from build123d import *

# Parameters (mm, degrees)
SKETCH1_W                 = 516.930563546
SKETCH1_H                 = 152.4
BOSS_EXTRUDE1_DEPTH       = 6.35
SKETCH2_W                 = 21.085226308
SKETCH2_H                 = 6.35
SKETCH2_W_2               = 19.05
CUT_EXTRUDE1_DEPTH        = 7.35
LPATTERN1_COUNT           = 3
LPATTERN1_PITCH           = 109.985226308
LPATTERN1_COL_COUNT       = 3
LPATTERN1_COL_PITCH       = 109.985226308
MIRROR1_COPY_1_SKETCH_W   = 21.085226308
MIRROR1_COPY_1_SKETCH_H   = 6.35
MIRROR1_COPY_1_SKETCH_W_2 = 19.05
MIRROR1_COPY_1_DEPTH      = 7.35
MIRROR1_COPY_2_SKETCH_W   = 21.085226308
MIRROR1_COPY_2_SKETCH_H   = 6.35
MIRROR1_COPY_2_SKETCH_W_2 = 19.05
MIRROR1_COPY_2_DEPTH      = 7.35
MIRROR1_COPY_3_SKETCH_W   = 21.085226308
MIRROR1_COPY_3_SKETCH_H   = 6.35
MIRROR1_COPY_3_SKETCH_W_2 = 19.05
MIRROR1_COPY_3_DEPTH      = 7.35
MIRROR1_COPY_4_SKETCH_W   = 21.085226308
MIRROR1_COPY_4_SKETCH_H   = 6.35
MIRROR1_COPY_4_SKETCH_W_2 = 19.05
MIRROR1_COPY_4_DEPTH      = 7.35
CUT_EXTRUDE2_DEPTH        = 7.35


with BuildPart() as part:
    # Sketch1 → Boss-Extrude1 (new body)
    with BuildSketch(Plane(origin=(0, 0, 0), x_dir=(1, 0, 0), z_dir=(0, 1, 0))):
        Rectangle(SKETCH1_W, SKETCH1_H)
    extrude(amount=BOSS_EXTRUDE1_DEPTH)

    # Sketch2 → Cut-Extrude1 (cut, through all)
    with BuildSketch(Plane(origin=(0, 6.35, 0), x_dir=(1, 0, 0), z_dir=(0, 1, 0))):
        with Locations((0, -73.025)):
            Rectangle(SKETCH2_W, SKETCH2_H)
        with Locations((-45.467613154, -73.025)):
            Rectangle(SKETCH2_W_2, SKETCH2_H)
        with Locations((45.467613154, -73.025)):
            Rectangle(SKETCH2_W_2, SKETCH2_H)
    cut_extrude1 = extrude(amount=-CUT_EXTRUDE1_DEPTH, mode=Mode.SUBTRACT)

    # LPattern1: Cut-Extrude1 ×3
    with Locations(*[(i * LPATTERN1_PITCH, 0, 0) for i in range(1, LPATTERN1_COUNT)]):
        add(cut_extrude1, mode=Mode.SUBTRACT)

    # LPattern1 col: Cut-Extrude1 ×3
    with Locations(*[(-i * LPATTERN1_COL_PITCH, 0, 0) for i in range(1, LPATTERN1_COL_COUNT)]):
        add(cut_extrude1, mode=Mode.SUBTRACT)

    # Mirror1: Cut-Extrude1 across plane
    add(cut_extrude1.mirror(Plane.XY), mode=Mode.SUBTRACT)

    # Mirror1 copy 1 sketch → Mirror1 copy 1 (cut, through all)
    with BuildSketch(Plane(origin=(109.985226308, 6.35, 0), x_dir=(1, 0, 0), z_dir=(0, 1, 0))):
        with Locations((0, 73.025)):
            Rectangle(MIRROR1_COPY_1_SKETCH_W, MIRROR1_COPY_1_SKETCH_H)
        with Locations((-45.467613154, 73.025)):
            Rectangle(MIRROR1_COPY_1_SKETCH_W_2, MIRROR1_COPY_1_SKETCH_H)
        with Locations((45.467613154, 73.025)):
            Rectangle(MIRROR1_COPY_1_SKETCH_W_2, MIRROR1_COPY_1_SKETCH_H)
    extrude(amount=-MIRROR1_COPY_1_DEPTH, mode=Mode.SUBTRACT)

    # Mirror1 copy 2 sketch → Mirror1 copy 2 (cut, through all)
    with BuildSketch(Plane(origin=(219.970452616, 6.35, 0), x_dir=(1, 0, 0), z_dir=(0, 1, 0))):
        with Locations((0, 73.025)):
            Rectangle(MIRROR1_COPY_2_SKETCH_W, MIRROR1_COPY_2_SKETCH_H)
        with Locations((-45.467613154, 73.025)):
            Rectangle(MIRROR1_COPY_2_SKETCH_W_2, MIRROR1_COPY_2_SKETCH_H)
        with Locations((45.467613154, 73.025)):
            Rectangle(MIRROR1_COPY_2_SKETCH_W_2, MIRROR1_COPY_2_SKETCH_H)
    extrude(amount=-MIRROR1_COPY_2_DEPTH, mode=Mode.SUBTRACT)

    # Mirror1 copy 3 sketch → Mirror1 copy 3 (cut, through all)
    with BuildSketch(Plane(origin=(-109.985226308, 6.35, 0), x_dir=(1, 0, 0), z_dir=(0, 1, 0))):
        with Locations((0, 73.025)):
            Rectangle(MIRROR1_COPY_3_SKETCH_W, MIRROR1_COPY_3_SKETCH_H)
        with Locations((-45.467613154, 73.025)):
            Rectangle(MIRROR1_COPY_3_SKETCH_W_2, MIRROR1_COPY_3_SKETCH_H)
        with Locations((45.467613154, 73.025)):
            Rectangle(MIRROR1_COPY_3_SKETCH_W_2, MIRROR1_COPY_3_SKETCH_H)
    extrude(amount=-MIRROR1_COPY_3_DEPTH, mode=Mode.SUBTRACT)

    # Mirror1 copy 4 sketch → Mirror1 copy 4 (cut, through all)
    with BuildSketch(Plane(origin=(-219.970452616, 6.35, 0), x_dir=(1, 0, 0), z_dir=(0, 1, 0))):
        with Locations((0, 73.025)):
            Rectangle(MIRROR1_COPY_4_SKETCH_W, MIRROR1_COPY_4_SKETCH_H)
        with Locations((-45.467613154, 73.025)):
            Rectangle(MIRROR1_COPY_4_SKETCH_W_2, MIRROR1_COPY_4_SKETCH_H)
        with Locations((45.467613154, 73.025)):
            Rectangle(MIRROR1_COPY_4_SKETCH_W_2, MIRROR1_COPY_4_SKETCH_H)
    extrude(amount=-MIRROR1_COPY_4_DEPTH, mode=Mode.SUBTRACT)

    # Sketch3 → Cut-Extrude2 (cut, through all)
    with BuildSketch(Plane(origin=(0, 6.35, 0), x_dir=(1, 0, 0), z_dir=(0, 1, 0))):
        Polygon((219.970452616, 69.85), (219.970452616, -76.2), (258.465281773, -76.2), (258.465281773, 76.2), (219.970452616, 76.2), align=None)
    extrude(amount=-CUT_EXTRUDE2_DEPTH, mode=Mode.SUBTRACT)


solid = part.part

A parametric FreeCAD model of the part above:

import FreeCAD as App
import Part
import Sketcher
from FreeCAD import Vector
Q = App.Units.Quantity


def add_polygon(sketch, points):
    """Adds a closed chain of lines whose ends are joined by coincident constraints."""
    first, n = sketch.GeometryCount, len(points)
    for a, b in zip(points, points[1:] + points[:1]):
        sketch.addGeometry(Part.LineSegment(App.Vector(*a, 0), App.Vector(*b, 0)), False)
    for i in range(n):
        sketch.addConstraint(Sketcher.Constraint("Coincident", first + i, 2, first + (i + 1) % n, 1))

doc = App.newDocument("Part")
body = doc.addObject("PartDesign::Body", "Body")

# Sketch on XZ plane
sketch1 = body.newObject("Sketcher::SketchObject", "Sketch")
sketch1.AttachmentSupport = (doc.getObject("XZ_Plane"), [""])
sketch1.MapMode = "FlatFace"
add_polygon(sketch1, [(-258, -76), (-258, 76), (258, 76), (258, -76)])  # lines 0-3
sketch1.addConstraint([
    Sketcher.Constraint("Vertical", 0),
    Sketcher.Constraint("Horizontal", 1),
    Sketcher.Constraint("Vertical", 2),
    Sketcher.Constraint("Horizontal", 3),
    Sketcher.Constraint("Symmetric", 0, 2, 2, 2, -1, 1),
    Sketcher.Constraint("DistanceY", 0, 1, 0, 2, Q("6 in")),
    Sketcher.Constraint("DistanceX", 1, 1, 1, 2, 516.930564),
])
pad1 = body.newObject("PartDesign::Pad", "Pad")
pad1.Profile = sketch1
pad1.Length = Q("0.25 in")
pad1.Reversed = True

# Sketch on XZ plane
sketch2 = body.newObject("Sketcher::SketchObject", "Sketch001")
sketch2.AttachmentSupport = (doc.getObject("XZ_Plane"), [""])
sketch2.MapMode = "FlatFace"
sketch2.AttachmentOffset = App.Placement(Vector(0, 0, -0.25 * 25.4), App.Rotation())
add_polygon(sketch2, [(-11, 70), (-11, 76), (11, 76), (11, 70)])  # lines 0-3
add_polygon(sketch2, [(-55, 70), (-55, 76), (-36, 76), (-36, 70)])  # lines 4-7
add_polygon(sketch2, [(36, 70), (36, 76), (55, 76), (55, 70)])  # lines 8-11
sketch2.addConstraint([
    Sketcher.Constraint("Vertical", 0),
    Sketcher.Constraint("Horizontal", 1),
    Sketcher.Constraint("Vertical", 2),
    Sketcher.Constraint("Horizontal", 3),
    Sketcher.Constraint("Vertical", 4),
    Sketcher.Constraint("Horizontal", 5),
    Sketcher.Constraint("Vertical", 6),
    Sketcher.Constraint("Horizontal", 7),
    Sketcher.Constraint("Vertical", 8),
    Sketcher.Constraint("Horizontal", 9),
    Sketcher.Constraint("Vertical", 10),
    Sketcher.Constraint("Horizontal", 11),
    Sketcher.Constraint("Symmetric", 5, 2, 8, 2, -2),
    Sketcher.Constraint("Symmetric", 7, 2, 10, 2, -2),
    Sketcher.Constraint("Horizontal", 1, 2, 4, 2),
    Sketcher.Constraint("Horizontal", 3, 2, 6, 2),
    Sketcher.Constraint("DistanceY", -1, 1, 0, 2, Q("3 in")),
    Sketcher.Constraint("DistanceX", 5, 2, 0, 2, Q("1 in")),
    Sketcher.Constraint("DistanceX", 1, 2, 8, 2, Q("1 in")),
    Sketcher.Constraint("DistanceX", 5, 1, 5, 2, Q("0.75 in")),
    Sketcher.Constraint("DistanceY", 0, 1, 0, 2, Q("0.25 in")),
    Sketcher.Constraint("DistanceX", 1, 1, 1, 2, 21.085226),
])
pocket1 = body.newObject("PartDesign::Pocket", "Pocket")
pocket1.Profile = sketch2
pocket1.Type = "ThroughAll"
pocket1.Reversed = True
doc.recompute()

linearpattern = body.newObject("PartDesign::LinearPattern", "LinearPattern")
linearpattern.Originals = [pocket1]
linearpattern.Direction = (doc.getObject("X_Axis"), [""])
linearpattern.Mode = "offset"
linearpattern.Offset = 109.985226
linearpattern.Occurrences = 3
body.Tip = linearpattern
doc.recompute()

linearpattern2 = body.newObject("PartDesign::LinearPattern", "LinearPattern001")
linearpattern2.Originals = [pocket1]
linearpattern2.Direction = (doc.getObject("X_Axis"), [""])
linearpattern2.Mode = "offset"
linearpattern2.Offset = 109.985226
linearpattern2.Occurrences = 3
linearpattern2.Reversed = True
body.Tip = linearpattern2
doc.recompute()

mirrored = body.newObject("PartDesign::Mirrored", "Mirrored")
mirrored.Originals = [pocket1]
mirrored.MirrorPlane = (doc.getObject("XY_Plane"), [""])
body.Tip = mirrored

# Sketch on XZ plane
sketch3 = body.newObject("Sketcher::SketchObject", "Sketch002")
sketch3.AttachmentSupport = (doc.getObject("XZ_Plane"), [""])
sketch3.MapMode = "FlatFace"
sketch3.AttachmentOffset = App.Placement(Vector(0, 0, -0.25 * 25.4), App.Rotation())
add_polygon(sketch3, [(99, -76), (99, -70), (121, -70), (121, -76)])  # lines 0-3
add_polygon(sketch3, [(55, -76), (55, -70), (74, -70), (74, -76)])  # lines 4-7
add_polygon(sketch3, [(146, -76), (146, -70), (165, -70), (165, -76)])  # lines 8-11
sketch3.addConstraint([
    Sketcher.Constraint("Vertical", 0),
    Sketcher.Constraint("Horizontal", 1),
    Sketcher.Constraint("Vertical", 2),
    Sketcher.Constraint("Horizontal", 3),
    Sketcher.Constraint("Vertical", 4),
    Sketcher.Constraint("Horizontal", 5),
    Sketcher.Constraint("Vertical", 6),
    Sketcher.Constraint("Horizontal", 7),
    Sketcher.Constraint("Vertical", 8),
    Sketcher.Constraint("Horizontal", 9),
    Sketcher.Constraint("Vertical", 10),
    Sketcher.Constraint("Horizontal", 11),
    Sketcher.Constraint("Horizontal", 1, 2, 4, 2),
    Sketcher.Constraint("Horizontal", 3, 2, 6, 2),
    Sketcher.Constraint("Horizontal", 5, 2, 8, 2),
    Sketcher.Constraint("Horizontal", 7, 2, 10, 2),
    Sketcher.Constraint("Equal", 7, 9),
    Sketcher.Constraint("DistanceY", 2, 2, -1, 1, Q("3 in")),
    Sketcher.Constraint("DistanceX", 5, 2, 0, 2, Q("1 in")),
    Sketcher.Constraint("DistanceX", 1, 2, 8, 2, Q("1 in")),
    Sketcher.Constraint("DistanceX", 5, 1, 5, 2, Q("0.75 in")),
    Sketcher.Constraint("DistanceY", 0, 1, 0, 2, Q("0.25 in")),
    Sketcher.Constraint("DistanceX", 1, 1, 1, 2, 21.085226),
    Sketcher.Constraint("DistanceX", -1, 1, 1, 2, 120.527839),
])
pocket2 = body.newObject("PartDesign::Pocket", "Pocket001")
pocket2.Profile = sketch3
pocket2.Type = "ThroughAll"
pocket2.Reversed = True

# Sketch on XZ plane
sketch4 = body.newObject("Sketcher::SketchObject", "Sketch003")
sketch4.AttachmentSupport = (doc.getObject("XZ_Plane"), [""])
sketch4.MapMode = "FlatFace"
sketch4.AttachmentOffset = App.Placement(Vector(0, 0, -0.25 * 25.4), App.Rotation())
add_polygon(sketch4, [(209, -76), (209, -70), (231, -70), (231, -76)])  # lines 0-3
add_polygon(sketch4, [(165, -76), (165, -70), (184, -70), (184, -76)])  # lines 4-7
add_polygon(sketch4, [(256, -76), (256, -70), (275, -70), (275, -76)])  # lines 8-11
sketch4.addConstraint([
    Sketcher.Constraint("Vertical", 0),
    Sketcher.Constraint("Horizontal", 1),
    Sketcher.Constraint("Vertical", 2),
    Sketcher.Constraint("Horizontal", 3),
    Sketcher.Constraint("Vertical", 4),
    Sketcher.Constraint("Horizontal", 5),
    Sketcher.Constraint("Vertical", 6),
    Sketcher.Constraint("Horizontal", 7),
    Sketcher.Constraint("Vertical", 8),
    Sketcher.Constraint("Horizontal", 9),
    Sketcher.Constraint("Vertical", 10),
    Sketcher.Constraint("Horizontal", 11),
    Sketcher.Constraint("Horizontal", 1, 2, 4, 2),
    Sketcher.Constraint("Horizontal", 3, 2, 6, 2),
    Sketcher.Constraint("Horizontal", 5, 2, 8, 2),
    Sketcher.Constraint("Horizontal", 7, 2, 10, 2),
    Sketcher.Constraint("Equal", 7, 9),
    Sketcher.Constraint("DistanceY", 2, 2, -1, 1, Q("3 in")),
    Sketcher.Constraint("DistanceX", 5, 2, 0, 2, Q("1 in")),
    Sketcher.Constraint("DistanceX", 1, 2, 8, 2, Q("1 in")),
    Sketcher.Constraint("DistanceX", 5, 1, 5, 2, Q("0.75 in")),
    Sketcher.Constraint("DistanceY", 0, 1, 0, 2, Q("0.25 in")),
    Sketcher.Constraint("DistanceX", 1, 1, 1, 2, 21.085226),
    Sketcher.Constraint("DistanceX", -1, 1, 0, 2, 209.427839),
])
pocket3 = body.newObject("PartDesign::Pocket", "Pocket002")
pocket3.Profile = sketch4
pocket3.Type = "ThroughAll"
pocket3.Reversed = True

# Sketch on XZ plane
sketch5 = body.newObject("Sketcher::SketchObject", "Sketch004")
sketch5.AttachmentSupport = (doc.getObject("XZ_Plane"), [""])
sketch5.MapMode = "FlatFace"
sketch5.AttachmentOffset = App.Placement(Vector(0, 0, -0.25 * 25.4), App.Rotation())
add_polygon(sketch5, [(-121, -76), (-121, -70), (-99, -70), (-99, -76)])  # lines 0-3
add_polygon(sketch5, [(-165, -76), (-165, -70), (-146, -70), (-146, -76)])  # lines 4-7
add_polygon(sketch5, [(-74, -76), (-74, -70), (-55, -70), (-55, -76)])  # lines 8-11
sketch5.addConstraint([
    Sketcher.Constraint("Vertical", 0),
    Sketcher.Constraint("Horizontal", 1),
    Sketcher.Constraint("Vertical", 2),
    Sketcher.Constraint("Horizontal", 3),
    Sketcher.Constraint("Vertical", 4),
    Sketcher.Constraint("Horizontal", 5),
    Sketcher.Constraint("Vertical", 6),
    Sketcher.Constraint("Horizontal", 7),
    Sketcher.Constraint("Vertical", 8),
    Sketcher.Constraint("Horizontal", 9),
    Sketcher.Constraint("Vertical", 10),
    Sketcher.Constraint("Horizontal", 11),
    Sketcher.Constraint("Horizontal", 1, 2, 4, 2),
    Sketcher.Constraint("Horizontal", 3, 2, 6, 2),
    Sketcher.Constraint("Horizontal", 5, 2, 8, 2),
    Sketcher.Constraint("Horizontal", 7, 2, 10, 2),
    Sketcher.Constraint("Equal", 7, 9),
    Sketcher.Constraint("DistanceY", 2, 2, -1, 1, Q("3 in")),
    Sketcher.Constraint("DistanceX", 5, 2, 0, 2, Q("1 in")),
    Sketcher.Constraint("DistanceX", 1, 2, 8, 2, Q("1 in")),
    Sketcher.Constraint("DistanceX", 5, 1, 5, 2, Q("0.75 in")),
    Sketcher.Constraint("DistanceY", 0, 1, 0, 2, Q("0.25 in")),
    Sketcher.Constraint("DistanceX", 1, 1, 1, 2, 21.085226),
    Sketcher.Constraint("DistanceX", 0, 2, -1, 1, 120.527839),
])
pocket4 = body.newObject("PartDesign::Pocket", "Pocket003")
pocket4.Profile = sketch5
pocket4.Type = "ThroughAll"
pocket4.Reversed = True

# Sketch on XZ plane
sketch6 = body.newObject("Sketcher::SketchObject", "Sketch005")
sketch6.AttachmentSupport = (doc.getObject("XZ_Plane"), [""])
sketch6.MapMode = "FlatFace"
sketch6.AttachmentOffset = App.Placement(Vector(0, 0, -0.25 * 25.4), App.Rotation())
add_polygon(sketch6, [(-231, -76), (-231, -70), (-209, -70), (-209, -76)])  # lines 0-3
add_polygon(sketch6, [(-275, -76), (-275, -70), (-256, -70), (-256, -76)])  # lines 4-7
add_polygon(sketch6, [(-184, -76), (-184, -70), (-165, -70), (-165, -76)])  # lines 8-11
sketch6.addConstraint([
    Sketcher.Constraint("Vertical", 0),
    Sketcher.Constraint("Horizontal", 1),
    Sketcher.Constraint("Vertical", 2),
    Sketcher.Constraint("Horizontal", 3),
    Sketcher.Constraint("Vertical", 4),
    Sketcher.Constraint("Horizontal", 5),
    Sketcher.Constraint("Vertical", 6),
    Sketcher.Constraint("Horizontal", 7),
    Sketcher.Constraint("Vertical", 8),
    Sketcher.Constraint("Horizontal", 9),
    Sketcher.Constraint("Vertical", 10),
    Sketcher.Constraint("Horizontal", 11),
    Sketcher.Constraint("Horizontal", 1, 2, 4, 2),
    Sketcher.Constraint("Horizontal", 3, 2, 6, 2),
    Sketcher.Constraint("Horizontal", 5, 2, 8, 2),
    Sketcher.Constraint("Horizontal", 7, 2, 10, 2),
    Sketcher.Constraint("Equal", 7, 9),
    Sketcher.Constraint("DistanceY", 2, 2, -1, 1, Q("3 in")),
    Sketcher.Constraint("DistanceX", 5, 2, 0, 2, Q("1 in")),
    Sketcher.Constraint("DistanceX", 1, 2, 8, 2, Q("1 in")),
    Sketcher.Constraint("DistanceX", 5, 1, 5, 2, Q("0.75 in")),
    Sketcher.Constraint("DistanceY", 0, 1, 0, 2, Q("0.25 in")),
    Sketcher.Constraint("DistanceX", 1, 1, 1, 2, 21.085226),
    Sketcher.Constraint("DistanceX", 1, 2, -1, 1, 209.427839),
])
pocket5 = body.newObject("PartDesign::Pocket", "Pocket004")
pocket5.Profile = sketch6
pocket5.Type = "ThroughAll"
pocket5.Reversed = True

# Sketch on XZ plane
sketch7 = body.newObject("Sketcher::SketchObject", "Sketch006")
sketch7.AttachmentSupport = (doc.getObject("XZ_Plane"), [""])
sketch7.MapMode = "FlatFace"
sketch7.AttachmentOffset = App.Placement(Vector(0, 0, -0.25 * 25.4), App.Rotation())
add_polygon(sketch7, [(220, 76), (258, 76), (258, -76), (220, -76)])  # lines 0-3
sketch7.addConstraint([
    Sketcher.Constraint("Horizontal", 0),
    Sketcher.Constraint("Vertical", 1),
    Sketcher.Constraint("Horizontal", 2),
    Sketcher.Constraint("Vertical", 3),
    Sketcher.Constraint("DistanceY", 1, 2, 1, 1, Q("6 in")),
    Sketcher.Constraint("DistanceY", -1, 1, 0, 2, Q("3 in")),
    Sketcher.Constraint("DistanceX", 0, 1, 0, 2, 38.494829),
    Sketcher.Constraint("DistanceX", -1, 1, 0, 2, 258.465282),
])
pocket6 = body.newObject("PartDesign::Pocket", "Pocket005")
pocket6.Profile = sketch7
pocket6.Type = "ThroughAll"
pocket6.Reversed = True

doc.recompute()
